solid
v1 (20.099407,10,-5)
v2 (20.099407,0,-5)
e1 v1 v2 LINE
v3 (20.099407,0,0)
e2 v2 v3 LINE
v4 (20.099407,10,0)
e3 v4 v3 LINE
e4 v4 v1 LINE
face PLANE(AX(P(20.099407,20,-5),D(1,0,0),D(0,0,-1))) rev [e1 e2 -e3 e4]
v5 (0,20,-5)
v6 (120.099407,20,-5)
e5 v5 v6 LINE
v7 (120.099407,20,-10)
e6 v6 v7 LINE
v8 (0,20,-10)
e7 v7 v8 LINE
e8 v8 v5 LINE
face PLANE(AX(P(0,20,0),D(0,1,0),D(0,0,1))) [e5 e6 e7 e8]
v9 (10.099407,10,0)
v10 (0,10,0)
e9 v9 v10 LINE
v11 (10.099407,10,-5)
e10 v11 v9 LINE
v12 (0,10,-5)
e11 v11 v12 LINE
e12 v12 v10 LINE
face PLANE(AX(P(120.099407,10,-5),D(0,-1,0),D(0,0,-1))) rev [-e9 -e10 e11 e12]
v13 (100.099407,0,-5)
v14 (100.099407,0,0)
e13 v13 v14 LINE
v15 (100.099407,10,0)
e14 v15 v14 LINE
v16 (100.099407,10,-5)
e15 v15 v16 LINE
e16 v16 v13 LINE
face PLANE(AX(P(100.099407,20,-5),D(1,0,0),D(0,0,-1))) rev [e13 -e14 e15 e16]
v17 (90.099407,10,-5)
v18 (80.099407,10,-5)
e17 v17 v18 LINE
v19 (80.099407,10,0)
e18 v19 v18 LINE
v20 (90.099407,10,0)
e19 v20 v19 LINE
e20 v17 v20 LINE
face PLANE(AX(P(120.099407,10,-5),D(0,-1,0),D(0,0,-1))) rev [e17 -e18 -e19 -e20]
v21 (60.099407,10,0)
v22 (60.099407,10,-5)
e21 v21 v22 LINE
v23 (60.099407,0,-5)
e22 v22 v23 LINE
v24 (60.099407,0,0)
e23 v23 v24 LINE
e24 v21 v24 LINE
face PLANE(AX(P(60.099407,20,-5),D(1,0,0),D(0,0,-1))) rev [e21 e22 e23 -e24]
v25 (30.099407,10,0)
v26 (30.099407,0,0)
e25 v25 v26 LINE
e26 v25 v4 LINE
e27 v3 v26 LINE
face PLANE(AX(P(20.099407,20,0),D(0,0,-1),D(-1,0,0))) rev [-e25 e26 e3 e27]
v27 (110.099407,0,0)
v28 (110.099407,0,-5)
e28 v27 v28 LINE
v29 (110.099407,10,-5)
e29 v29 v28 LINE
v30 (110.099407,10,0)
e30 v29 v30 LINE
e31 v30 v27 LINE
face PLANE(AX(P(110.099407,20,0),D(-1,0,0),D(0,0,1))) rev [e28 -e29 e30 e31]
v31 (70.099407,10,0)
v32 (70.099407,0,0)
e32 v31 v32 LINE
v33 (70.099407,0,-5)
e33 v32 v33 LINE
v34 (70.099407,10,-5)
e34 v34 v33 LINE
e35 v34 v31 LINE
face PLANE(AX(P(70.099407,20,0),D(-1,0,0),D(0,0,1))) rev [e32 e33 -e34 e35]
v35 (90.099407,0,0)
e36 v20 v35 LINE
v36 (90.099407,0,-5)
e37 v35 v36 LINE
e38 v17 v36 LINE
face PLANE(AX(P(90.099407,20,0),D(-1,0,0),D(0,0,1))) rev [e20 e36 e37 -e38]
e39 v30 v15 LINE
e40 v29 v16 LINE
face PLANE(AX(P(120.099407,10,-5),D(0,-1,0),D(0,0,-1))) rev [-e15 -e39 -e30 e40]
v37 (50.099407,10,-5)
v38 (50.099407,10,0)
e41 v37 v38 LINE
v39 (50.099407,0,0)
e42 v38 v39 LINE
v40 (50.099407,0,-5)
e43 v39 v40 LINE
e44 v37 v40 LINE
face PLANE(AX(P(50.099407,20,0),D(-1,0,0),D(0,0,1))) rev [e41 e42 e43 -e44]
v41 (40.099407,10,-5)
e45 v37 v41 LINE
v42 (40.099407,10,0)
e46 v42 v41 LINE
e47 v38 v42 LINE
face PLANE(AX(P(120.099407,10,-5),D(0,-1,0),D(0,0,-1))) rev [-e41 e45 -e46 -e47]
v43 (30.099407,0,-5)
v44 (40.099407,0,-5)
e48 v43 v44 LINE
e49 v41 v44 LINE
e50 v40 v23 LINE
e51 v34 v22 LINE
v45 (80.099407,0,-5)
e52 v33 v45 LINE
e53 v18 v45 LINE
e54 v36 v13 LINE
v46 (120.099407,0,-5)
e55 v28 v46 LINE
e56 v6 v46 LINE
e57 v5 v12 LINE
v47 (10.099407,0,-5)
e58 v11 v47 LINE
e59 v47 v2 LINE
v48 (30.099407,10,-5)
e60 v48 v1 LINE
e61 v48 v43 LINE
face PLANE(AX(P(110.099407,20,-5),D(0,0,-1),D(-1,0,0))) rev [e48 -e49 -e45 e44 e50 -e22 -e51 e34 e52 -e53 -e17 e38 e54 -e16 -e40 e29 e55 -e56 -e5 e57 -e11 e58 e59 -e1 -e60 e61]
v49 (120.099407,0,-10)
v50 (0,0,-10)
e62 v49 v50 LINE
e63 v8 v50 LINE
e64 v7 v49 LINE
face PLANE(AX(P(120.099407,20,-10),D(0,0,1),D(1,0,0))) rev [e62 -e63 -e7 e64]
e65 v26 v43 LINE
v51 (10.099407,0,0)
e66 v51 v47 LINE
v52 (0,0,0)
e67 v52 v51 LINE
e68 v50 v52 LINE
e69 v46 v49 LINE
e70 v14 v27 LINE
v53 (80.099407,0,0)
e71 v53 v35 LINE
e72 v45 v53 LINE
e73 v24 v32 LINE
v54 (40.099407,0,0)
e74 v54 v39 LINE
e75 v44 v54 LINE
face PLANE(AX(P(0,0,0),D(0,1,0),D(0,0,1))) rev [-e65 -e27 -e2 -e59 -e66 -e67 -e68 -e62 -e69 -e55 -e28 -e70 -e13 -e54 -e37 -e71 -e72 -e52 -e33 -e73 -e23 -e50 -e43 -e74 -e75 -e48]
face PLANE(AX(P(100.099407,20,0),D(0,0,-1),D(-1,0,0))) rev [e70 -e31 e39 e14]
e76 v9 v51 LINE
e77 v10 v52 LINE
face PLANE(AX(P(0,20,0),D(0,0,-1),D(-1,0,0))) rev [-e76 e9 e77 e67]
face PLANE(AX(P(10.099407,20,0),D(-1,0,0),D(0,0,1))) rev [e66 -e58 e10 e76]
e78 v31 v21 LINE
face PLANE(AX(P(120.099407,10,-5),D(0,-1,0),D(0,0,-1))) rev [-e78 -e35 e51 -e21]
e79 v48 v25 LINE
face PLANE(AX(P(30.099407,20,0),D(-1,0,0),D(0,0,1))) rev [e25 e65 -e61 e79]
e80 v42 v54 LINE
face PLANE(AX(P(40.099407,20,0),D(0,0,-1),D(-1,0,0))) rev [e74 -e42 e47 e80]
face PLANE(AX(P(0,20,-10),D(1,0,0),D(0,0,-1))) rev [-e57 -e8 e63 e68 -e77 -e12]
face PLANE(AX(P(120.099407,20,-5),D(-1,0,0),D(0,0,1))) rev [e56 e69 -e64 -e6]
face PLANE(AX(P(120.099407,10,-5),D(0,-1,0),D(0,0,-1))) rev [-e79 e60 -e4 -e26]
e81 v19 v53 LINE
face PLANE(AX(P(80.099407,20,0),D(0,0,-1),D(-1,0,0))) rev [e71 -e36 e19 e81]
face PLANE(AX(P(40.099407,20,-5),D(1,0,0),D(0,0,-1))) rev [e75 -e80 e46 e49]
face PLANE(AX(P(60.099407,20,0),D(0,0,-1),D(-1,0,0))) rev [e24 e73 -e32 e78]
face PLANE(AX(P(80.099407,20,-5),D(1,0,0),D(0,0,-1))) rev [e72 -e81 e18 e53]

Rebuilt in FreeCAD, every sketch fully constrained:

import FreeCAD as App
import Part
import Sketcher


def add_polygon(sketch, points):
    """Adds a closed chain of lines whose ends are joined by coincident constraints."""
    first, n = sketch.GeometryCount, len(points)
    for a, b in zip(points, points[1:] + points[:1]):
        sketch.addGeometry(Part.LineSegment(App.Vector(*a, 0), App.Vector(*b, 0)), False)
    for i in range(n):
        sketch.addConstraint(Sketcher.Constraint("Coincident", first + i, 2, first + (i + 1) % n, 1))

doc = App.newDocument("Part")
body = doc.addObject("PartDesign::Body", "Body")

# Sketch on XZ plane
sketch1 = body.newObject("Sketcher::SketchObject", "Sketch")
sketch1.AttachmentSupport = (doc.getObject("XZ_Plane"), [""])
sketch1.MapMode = "FlatFace"
add_polygon(sketch1, [(0, 0), (10, 0), (10, -5), (20, -5), (20, 0), (30, 0), (30, -5), (40, -5), (40, 0), (50, 0), (50, -5), (60, -5), (60, 0), (70, 0), (70, -5), (80, -5), (80, 0), (90, 0), (90, -5), (100, -5), (100, 0), (110, 0), (110, -5), (120, -5), (120, -10), (0, -10)])  # lines 0-25
sketch1.addConstraint(Sketcher.Constraint("Horizontal", 0))
sketch1.addConstraint(Sketcher.Constraint("Vertical", 1))
sketch1.addConstraint(Sketcher.Constraint("Horizontal", 2))
sketch1.addConstraint(Sketcher.Constraint("Vertical", 3))
sketch1.addConstraint(Sketcher.Constraint("Horizontal", 4))
sketch1.addConstraint(Sketcher.Constraint("Vertical", 5))
sketch1.addConstraint(Sketcher.Constraint("Horizontal", 6))
sketch1.addConstraint(Sketcher.Constraint("Vertical", 7))
sketch1.addConstraint(Sketcher.Constraint("Horizontal", 8))
sketch1.addConstraint(Sketcher.Constraint("Vertical", 9))
sketch1.addConstraint(Sketcher.Constraint("Horizontal", 10))
sketch1.addConstraint(Sketcher.Constraint("Vertical", 11))
sketch1.addConstraint(Sketcher.Constraint("Horizontal", 12))
sketch1.addConstraint(Sketcher.Constraint("Vertical", 13))
sketch1.addConstraint(Sketcher.Constraint("Horizontal", 14))
sketch1.addConstraint(Sketcher.Constraint("Vertical", 15))
sketch1.addConstraint(Sketcher.Constraint("Horizontal", 16))
sketch1.addConstraint(Sketcher.Constraint("Vertical", 17))
sketch1.addConstraint(Sketcher.Constraint("Horizontal", 18))
sketch1.addConstraint(Sketcher.Constraint("Vertical", 19))
sketch1.addConstraint(Sketcher.Constraint("Horizontal", 20))
sketch1.addConstraint(Sketcher.Constraint("Vertical", 21))
sketch1.addConstraint(Sketcher.Constraint("Horizontal", 22))
sketch1.addConstraint(Sketcher.Constraint("Vertical", 23))
sketch1.addConstraint(Sketcher.Constraint("Horizontal", 24))
sketch1.addConstraint(Sketcher.Constraint("Vertical", 25))
sketch1.addConstraint(Sketcher.Constraint("Coincident", 25, 2, -1, 1))
sketch1.addConstraint(Sketcher.Constraint("PointOnObject", 3, 2, -1))
sketch1.addConstraint(Sketcher.Constraint("PointOnObject", 7, 2, -1))
sketch1.addConstraint(Sketcher.Constraint("PointOnObject", 11, 2, -1))
sketch1.addConstraint(Sketcher.Constraint("PointOnObject", 15, 2, -1))
sketch1.addConstraint(Sketcher.Constraint("PointOnObject", 19, 2, -1))
sketch1.addConstraint(Sketcher.Constraint("Horizontal", 2, 2, 5, 2))
sketch1.addConstraint(Sketcher.Constraint("Horizontal", 6, 2, 9, 2))
sketch1.addConstraint(Sketcher.Constraint("Horizontal", 10, 2, 13, 2))
sketch1.addConstraint(Sketcher.Constraint("Horizontal", 14, 2, 17, 2))
sketch1.addConstraint(Sketcher.Constraint("Horizontal", 18, 2, 21, 2))
sketch1.addConstraint(Sketcher.Constraint("Equal", 2, 4))
sketch1.addConstraint(Sketcher.Constraint("Equal", 4, 6))
sketch1.addConstraint(Sketcher.Constraint("Equal", 6, 8))
sketch1.addConstraint(Sketcher.Constraint("Equal", 8, 10))
sketch1.addConstraint(Sketcher.Constraint("Equal", 10, 12))
sketch1.addConstraint(Sketcher.Constraint("Equal", 12, 14))
sketch1.addConstraint(Sketcher.Constraint("Equal", 14, 16))
sketch1.addConstraint(Sketcher.Constraint("Equal", 16, 18))
sketch1.addConstraint(Sketcher.Constraint("Equal", 18, 20))
sketch1.addConstraint(Sketcher.Constraint("Equal", 20, 22))
sketch1.addConstraint(Sketcher.Constraint("Equal", 21, 23))
sketch1.addConstraint(Sketcher.Constraint("Equal", 22, 25))
sketch1.addConstraint(Sketcher.Constraint("DistanceX", 2, 1, 2, 2, 10.0))
sketch1.addConstraint(Sketcher.Constraint("DistanceX", 0, 1, 0, 2, 10.099407))
pad1 = body.newObject("PartDesign::Pad", "Pad")
pad1.Profile = sketch1
pad1.Length = 20
pad1.Reversed = True

# Sketch on YZ plane
sketch2 = body.newObject("Sketcher::SketchObject", "Sketch001")
sketch2.AttachmentSupport = (doc.getObject("YZ_Plane"), [""])
sketch2.MapMode = "FlatFace"
add_polygon(sketch2, [(20, -5), (10, -5), (10, 0), (20, 0)])  # lines 0-3
sketch2.addConstraint(Sketcher.Constraint("Horizontal", 0))
sketch2.addConstraint(Sketcher.Constraint("Vertical", 1))
sketch2.addConstraint(Sketcher.Constraint("Horizontal", 2))
sketch2.addConstraint(Sketcher.Constraint("Vertical", 3))
sketch2.addConstraint(Sketcher.Constraint("PointOnObject", 1, 2, -1))
sketch2.addConstraint(Sketcher.Constraint("DistanceX", 0, 2, 0, 1, 10.0))
sketch2.addConstraint(Sketcher.Constraint("DistanceY", 1, 1, 1, 2, 5.0))
sketch2.addConstraint(Sketcher.Constraint("DistanceX", -1, 1, 0, 2, 10.0))
pocket1 = body.newObject("PartDesign::Pocket", "Pocket")
pocket1.Profile = sketch2
pocket1.Type = "ThroughAll"
pocket1.Reversed = True

doc.recompute()
